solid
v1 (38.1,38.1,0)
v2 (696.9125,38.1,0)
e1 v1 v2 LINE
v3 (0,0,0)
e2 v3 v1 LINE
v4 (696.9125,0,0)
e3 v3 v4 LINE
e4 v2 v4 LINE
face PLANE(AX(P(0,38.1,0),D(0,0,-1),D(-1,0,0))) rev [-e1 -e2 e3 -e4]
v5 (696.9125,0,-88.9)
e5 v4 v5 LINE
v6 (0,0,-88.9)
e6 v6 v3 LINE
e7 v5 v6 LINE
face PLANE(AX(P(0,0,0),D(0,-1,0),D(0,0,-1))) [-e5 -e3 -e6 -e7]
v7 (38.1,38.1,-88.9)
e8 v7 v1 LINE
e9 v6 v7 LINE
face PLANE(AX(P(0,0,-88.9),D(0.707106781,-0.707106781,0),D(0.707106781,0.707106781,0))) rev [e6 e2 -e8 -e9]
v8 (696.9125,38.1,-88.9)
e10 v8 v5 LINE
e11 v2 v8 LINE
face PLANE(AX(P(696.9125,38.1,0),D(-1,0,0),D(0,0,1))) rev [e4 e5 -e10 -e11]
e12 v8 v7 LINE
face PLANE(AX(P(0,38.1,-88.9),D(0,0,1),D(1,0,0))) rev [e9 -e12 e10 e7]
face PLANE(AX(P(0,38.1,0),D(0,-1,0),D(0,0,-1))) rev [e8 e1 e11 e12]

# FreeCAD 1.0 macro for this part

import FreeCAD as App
import Part
import Sketcher
Q = App.Units.Quantity


def add_polygon(sketch, points):
    """Adds a closed chain of lines whose ends are joined by coincident constraints."""
    first, n = sketch.GeometryCount, len(points)
    for a, b in zip(points, points[1:] + points[:1]):
        sketch.addGeometry(Part.LineSegment(App.Vector(*a, 0), App.Vector(*b, 0)), False)
    for i in range(n):
        sketch.addConstraint(Sketcher.Constraint("Coincident", first + i, 2, first + (i + 1) % n, 1))

doc = App.newDocument("Part")
params = doc.addObject("Spreadsheet::Sheet", "Params")
for row, (alias, value) in enumerate([
    ("sketch1_height", "3.5 in"),
    ("sketch1_width", "27.4375 in"),
    ("pad1_length", "1.5 in"),
    ("sketch2_width", "1.5 in"),
], start=1):
    params.set(f"A{row}", alias)
    params.set(f"B{row}", "=" + value)
    params.setAlias(f"B{row}", alias)

body = doc.addObject("PartDesign::Body", "Body")

# Sketch on XZ plane
sketch1 = body.newObject("Sketcher::SketchObject", "Sketch")
sketch1.AttachmentSupport = (doc.getObject("XZ_Plane"), [""])
sketch1.MapMode = "FlatFace"
add_polygon(sketch1, [(0, -89), (0, 0), (697, 0), (697, -89)])  # lines 0-3
sketch1.addConstraint(Sketcher.Constraint("Vertical", 0))
sketch1.addConstraint(Sketcher.Constraint("Horizontal", 1))
sketch1.addConstraint(Sketcher.Constraint("Vertical", 2))
sketch1.addConstraint(Sketcher.Constraint("Horizontal", 3))
sketch1.addConstraint(Sketcher.Constraint("Coincident", 0, 2, -1, 1))
sketch1.addConstraint(Sketcher.Constraint("DistanceY", 0, 1, 0, 2, Q("3.5 in")))
sketch1.addConstraint(Sketcher.Constraint("DistanceX", 1, 1, 1, 2, Q("27.4375 in")))
sketch1.setExpression("Constraints[9]", "Params.sketch1_height")
sketch1.setExpression("Constraints[10]", "Params.sketch1_width")
pad1 = body.newObject("PartDesign::Pad", "Pad")
pad1.Profile = sketch1
pad1.setExpression("Length", "Params.pad1_length")
pad1.Reversed = True

# Sketch on XY plane
sketch2 = body.newObject("Sketcher::SketchObject", "Sketch001")
sketch2.AttachmentSupport = (doc.getObject("XY_Plane"), [""])
sketch2.MapMode = "FlatFace"
add_polygon(sketch2, [(0, 0), (38, 38), (0, 38)])  # lines 0-2
sketch2.addConstraint(Sketcher.Constraint("Horizontal", 1))
sketch2.addConstraint(Sketcher.Constraint("Vertical", 2))
sketch2.addConstraint(Sketcher.Constraint("Coincident", 2, 2, -1, 1))
sketch2.addConstraint(Sketcher.Constraint("Equal", 1, 2))
sketch2.addConstraint(Sketcher.Constraint("DistanceX", 1, 2, 1, 1, Q("1.5 in")))
sketch2.setExpression("Constraints[7]", "Params.sketch2_width")
pocket1 = body.newObject("PartDesign::Pocket", "Pocket")
pocket1.Profile = sketch2
pocket1.Type = "ThroughAll"

doc.recompute()
